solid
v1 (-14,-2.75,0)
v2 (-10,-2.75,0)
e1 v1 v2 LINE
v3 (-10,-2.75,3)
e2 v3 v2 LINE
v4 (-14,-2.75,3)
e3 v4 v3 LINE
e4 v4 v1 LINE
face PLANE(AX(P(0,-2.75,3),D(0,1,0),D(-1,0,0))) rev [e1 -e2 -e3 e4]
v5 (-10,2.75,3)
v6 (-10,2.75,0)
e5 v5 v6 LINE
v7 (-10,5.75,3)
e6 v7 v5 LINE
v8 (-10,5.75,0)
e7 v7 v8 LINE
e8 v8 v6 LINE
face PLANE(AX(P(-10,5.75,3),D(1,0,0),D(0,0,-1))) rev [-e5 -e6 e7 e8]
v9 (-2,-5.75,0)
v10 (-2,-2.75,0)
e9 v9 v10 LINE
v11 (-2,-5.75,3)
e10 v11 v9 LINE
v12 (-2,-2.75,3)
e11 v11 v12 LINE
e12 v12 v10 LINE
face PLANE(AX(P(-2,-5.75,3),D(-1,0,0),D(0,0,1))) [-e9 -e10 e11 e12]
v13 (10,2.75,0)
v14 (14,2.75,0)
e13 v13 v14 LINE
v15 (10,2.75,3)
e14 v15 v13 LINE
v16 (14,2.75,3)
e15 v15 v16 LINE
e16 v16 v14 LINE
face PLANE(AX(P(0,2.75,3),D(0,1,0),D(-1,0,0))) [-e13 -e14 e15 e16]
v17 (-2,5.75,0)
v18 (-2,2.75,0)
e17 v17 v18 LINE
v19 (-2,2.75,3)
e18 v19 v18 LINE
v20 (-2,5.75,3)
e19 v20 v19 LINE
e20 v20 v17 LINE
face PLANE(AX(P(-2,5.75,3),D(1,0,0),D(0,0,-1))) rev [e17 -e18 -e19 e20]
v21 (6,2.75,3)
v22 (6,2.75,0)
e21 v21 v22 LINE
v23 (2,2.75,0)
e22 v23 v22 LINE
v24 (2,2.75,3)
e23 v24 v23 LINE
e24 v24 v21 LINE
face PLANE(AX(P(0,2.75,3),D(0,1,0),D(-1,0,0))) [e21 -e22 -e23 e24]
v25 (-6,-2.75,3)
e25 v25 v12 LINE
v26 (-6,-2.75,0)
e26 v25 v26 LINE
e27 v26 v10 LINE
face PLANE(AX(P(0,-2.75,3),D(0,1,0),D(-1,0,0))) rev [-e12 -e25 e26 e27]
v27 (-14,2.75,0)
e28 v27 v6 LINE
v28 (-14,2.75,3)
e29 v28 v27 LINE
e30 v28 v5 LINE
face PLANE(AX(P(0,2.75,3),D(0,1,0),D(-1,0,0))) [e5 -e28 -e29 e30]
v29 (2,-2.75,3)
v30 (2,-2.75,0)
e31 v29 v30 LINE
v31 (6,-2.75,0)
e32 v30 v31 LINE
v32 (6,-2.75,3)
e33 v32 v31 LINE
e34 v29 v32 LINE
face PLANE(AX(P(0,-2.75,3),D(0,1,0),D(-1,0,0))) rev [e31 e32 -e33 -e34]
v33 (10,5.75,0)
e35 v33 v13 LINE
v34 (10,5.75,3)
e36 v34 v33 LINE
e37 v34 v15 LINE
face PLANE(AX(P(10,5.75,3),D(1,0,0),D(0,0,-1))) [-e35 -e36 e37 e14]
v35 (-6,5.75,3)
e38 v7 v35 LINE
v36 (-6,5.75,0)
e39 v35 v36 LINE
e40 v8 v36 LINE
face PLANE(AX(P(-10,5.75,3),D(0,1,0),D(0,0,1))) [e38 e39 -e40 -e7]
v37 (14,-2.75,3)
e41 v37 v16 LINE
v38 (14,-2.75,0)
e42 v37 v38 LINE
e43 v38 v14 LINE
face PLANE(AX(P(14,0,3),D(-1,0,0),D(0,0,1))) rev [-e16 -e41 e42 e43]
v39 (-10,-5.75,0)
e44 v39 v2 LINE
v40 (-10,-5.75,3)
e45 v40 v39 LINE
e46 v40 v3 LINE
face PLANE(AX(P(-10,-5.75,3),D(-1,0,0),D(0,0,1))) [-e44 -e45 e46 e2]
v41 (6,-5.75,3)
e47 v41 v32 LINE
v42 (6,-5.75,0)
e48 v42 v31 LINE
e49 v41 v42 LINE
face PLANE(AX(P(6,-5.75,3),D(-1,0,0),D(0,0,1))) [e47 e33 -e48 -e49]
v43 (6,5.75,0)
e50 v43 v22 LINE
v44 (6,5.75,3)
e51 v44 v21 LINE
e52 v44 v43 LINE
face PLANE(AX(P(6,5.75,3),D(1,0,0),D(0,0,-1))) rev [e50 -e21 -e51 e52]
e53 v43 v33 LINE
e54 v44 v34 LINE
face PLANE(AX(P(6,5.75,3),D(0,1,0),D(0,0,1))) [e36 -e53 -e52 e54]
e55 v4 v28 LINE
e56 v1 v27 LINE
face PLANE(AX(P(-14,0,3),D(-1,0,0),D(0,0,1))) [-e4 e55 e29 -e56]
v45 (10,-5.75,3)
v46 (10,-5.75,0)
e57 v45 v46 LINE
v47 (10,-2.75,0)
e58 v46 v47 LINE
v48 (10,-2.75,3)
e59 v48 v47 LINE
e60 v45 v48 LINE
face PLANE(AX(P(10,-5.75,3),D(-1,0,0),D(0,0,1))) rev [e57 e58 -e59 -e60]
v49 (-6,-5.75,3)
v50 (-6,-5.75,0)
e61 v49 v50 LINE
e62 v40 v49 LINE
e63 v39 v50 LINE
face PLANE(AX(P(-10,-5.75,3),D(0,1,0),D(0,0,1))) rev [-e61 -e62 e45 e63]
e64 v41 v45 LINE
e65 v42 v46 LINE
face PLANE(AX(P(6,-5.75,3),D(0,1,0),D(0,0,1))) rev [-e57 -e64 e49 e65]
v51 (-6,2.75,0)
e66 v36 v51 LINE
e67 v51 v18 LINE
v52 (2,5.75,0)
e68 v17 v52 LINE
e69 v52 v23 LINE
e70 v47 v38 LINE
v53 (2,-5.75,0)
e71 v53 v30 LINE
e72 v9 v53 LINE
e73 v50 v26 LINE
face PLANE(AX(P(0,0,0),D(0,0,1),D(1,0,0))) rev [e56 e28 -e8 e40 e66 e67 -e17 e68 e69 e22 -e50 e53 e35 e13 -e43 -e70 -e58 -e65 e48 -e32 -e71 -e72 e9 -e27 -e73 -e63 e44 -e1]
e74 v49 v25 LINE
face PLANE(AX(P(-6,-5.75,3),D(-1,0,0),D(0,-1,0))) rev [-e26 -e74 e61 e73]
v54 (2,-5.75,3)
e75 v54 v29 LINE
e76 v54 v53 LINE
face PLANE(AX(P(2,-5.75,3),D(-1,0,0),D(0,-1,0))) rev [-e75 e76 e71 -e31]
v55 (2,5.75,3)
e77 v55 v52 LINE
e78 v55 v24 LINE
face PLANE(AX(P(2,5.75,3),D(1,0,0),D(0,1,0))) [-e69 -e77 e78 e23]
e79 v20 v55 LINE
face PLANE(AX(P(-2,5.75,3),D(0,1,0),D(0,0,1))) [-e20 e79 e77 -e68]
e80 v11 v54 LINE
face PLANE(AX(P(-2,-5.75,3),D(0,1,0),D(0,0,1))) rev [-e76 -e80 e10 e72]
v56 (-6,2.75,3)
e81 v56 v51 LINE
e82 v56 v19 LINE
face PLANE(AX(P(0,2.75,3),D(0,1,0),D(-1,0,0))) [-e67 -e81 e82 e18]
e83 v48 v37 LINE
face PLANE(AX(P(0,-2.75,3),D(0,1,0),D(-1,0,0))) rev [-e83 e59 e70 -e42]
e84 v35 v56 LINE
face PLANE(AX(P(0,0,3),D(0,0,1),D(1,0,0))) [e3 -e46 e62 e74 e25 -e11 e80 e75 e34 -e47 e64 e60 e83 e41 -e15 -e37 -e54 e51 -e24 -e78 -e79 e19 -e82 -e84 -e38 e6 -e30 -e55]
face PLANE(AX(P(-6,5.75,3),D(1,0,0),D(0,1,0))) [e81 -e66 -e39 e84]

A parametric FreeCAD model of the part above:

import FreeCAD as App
import Part
import Sketcher

V = App.Vector
Q = App.Units.Quantity

doc = App.newDocument("Part")
body = doc.addObject("PartDesign::Body", "Body")

# Sketch on XY plane
sketch1 = doc.addObject("Sketcher::SketchObject", "Sketch")
body.addObject(sketch1)
sketch1.AttachmentSupport = (doc.XY_Plane, [""])
sketch1.MapMode = "FlatFace"
sketch1.addGeometry([
    Part.LineSegment(V(-10, -2.75, 0), V(-10, -5.75, 0)),  # 0
    Part.LineSegment(V(-10, -5.75, 0), V(-6, -5.75, 0)),  # 1
    Part.LineSegment(V(-6, -5.75, 0), V(-6, -2.75, 0)),  # 2
    Part.LineSegment(V(-6, -2.75, 0), V(-2, -2.75, 0)),  # 3
    Part.LineSegment(V(-2, -2.75, 0), V(-2, -5.75, 0)),  # 4
    Part.LineSegment(V(-2, -5.75, 0), V(2, -5.75, 0)),  # 5
    Part.LineSegment(V(2, -5.75, 0), V(2, -2.75, 0)),  # 6
    Part.LineSegment(V(2, -2.75, 0), V(6, -2.75, 0)),  # 7
    Part.LineSegment(V(6, -2.75, 0), V(6, -5.75, 0)),  # 8
    Part.LineSegment(V(6, -5.75, 0), V(10, -5.75, 0)),  # 9
    Part.LineSegment(V(10, -5.75, 0), V(10, -2.75, 0)),  # 10
    Part.LineSegment(V(10, -2.75, 0), V(14, -2.75, 0)),  # 11
    Part.LineSegment(V(14, -2.75, 0), V(14, 2.75, 0)),  # 12
    Part.LineSegment(V(14, 2.75, 0), V(10, 2.75, 0)),  # 13
    Part.LineSegment(V(10, 2.75, 0), V(10, 5.75, 0)),  # 14
    Part.LineSegment(V(10, 5.75, 0), V(6, 5.75, 0)),  # 15
    Part.LineSegment(V(6, 5.75, 0), V(6, 2.75, 0)),  # 16
    Part.LineSegment(V(6, 2.75, 0), V(2, 2.75, 0)),  # 17
    Part.LineSegment(V(2, 2.75, 0), V(2, 5.75, 0)),  # 18
    Part.LineSegment(V(2, 5.75, 0), V(-2, 5.75, 0)),  # 19
    Part.LineSegment(V(-2, 5.75, 0), V(-2, 2.75, 0)),  # 20
    Part.LineSegment(V(-2, 2.75, 0), V(-6, 2.75, 0)),  # 21
    Part.LineSegment(V(-6, 2.75, 0), V(-6, 5.75, 0)),  # 22
    Part.LineSegment(V(-6, 5.75, 0), V(-10, 5.75, 0)),  # 23
    Part.LineSegment(V(-10, 5.75, 0), V(-10, 2.75, 0)),  # 24
    Part.LineSegment(V(-10, 2.75, 0), V(-14, 2.75, 0)),  # 25
    Part.LineSegment(V(-14, 2.75, 0), V(-14, -2.75, 0)),  # 26
    Part.LineSegment(V(-14, -2.75, 0), V(-10, -2.75, 0)),  # 27
], False)
sketch1.addConstraint([
    Sketcher.Constraint("Coincident", 0, 2, 1, 1),
    Sketcher.Constraint("Coincident", 1, 2, 2, 1),
    Sketcher.Constraint("Coincident", 2, 2, 3, 1),
    Sketcher.Constraint("Coincident", 3, 2, 4, 1),
    Sketcher.Constraint("Coincident", 4, 2, 5, 1),
    Sketcher.Constraint("Coincident", 5, 2, 6, 1),
    Sketcher.Constraint("Coincident", 6, 2, 7, 1),
    Sketcher.Constraint("Coincident", 7, 2, 8, 1),
    Sketcher.Constraint("Coincident", 8, 2, 9, 1),
    Sketcher.Constraint("Coincident", 9, 2, 10, 1),
    Sketcher.Constraint("Coincident", 10, 2, 11, 1),
    Sketcher.Constraint("Coincident", 11, 2, 12, 1),
    Sketcher.Constraint("Coincident", 12, 2, 13, 1),
    Sketcher.Constraint("Coincident", 13, 2, 14, 1),
    Sketcher.Constraint("Coincident", 14, 2, 15, 1),
    Sketcher.Constraint("Coincident", 15, 2, 16, 1),
    Sketcher.Constraint("Coincident", 16, 2, 17, 1),
    Sketcher.Constraint("Coincident", 17, 2, 18, 1),
    Sketcher.Constraint("Coincident", 18, 2, 19, 1),
    Sketcher.Constraint("Coincident", 19, 2, 20, 1),
    Sketcher.Constraint("Coincident", 20, 2, 21, 1),
    Sketcher.Constraint("Coincident", 21, 2, 22, 1),
    Sketcher.Constraint("Coincident", 22, 2, 23, 1),
    Sketcher.Constraint("Coincident", 23, 2, 24, 1),
    Sketcher.Constraint("Coincident", 24, 2, 25, 1),
    Sketcher.Constraint("Coincident", 25, 2, 26, 1),
    Sketcher.Constraint("Coincident", 26, 2, 27, 1),
    Sketcher.Constraint("Coincident", 27, 2, 0, 1),
    Sketcher.Constraint("Vertical", 0),
    Sketcher.Constraint("Horizontal", 1),
    Sketcher.Constraint("Vertical", 2),
    Sketcher.Constraint("Horizontal", 3),
    Sketcher.Constraint("Vertical", 4),
    Sketcher.Constraint("Horizontal", 5),
    Sketcher.Constraint("Vertical", 6),
    Sketcher.Constraint("Horizontal", 7),
    Sketcher.Constraint("Vertical", 8),
    Sketcher.Constraint("Horizontal", 9),
    Sketcher.Constraint("Vertical", 10),
    Sketcher.Constraint("Horizontal", 11),
    Sketcher.Constraint("Vertical", 12),
    Sketcher.Constraint("Horizontal", 13),
    Sketcher.Constraint("Vertical", 14),
    Sketcher.Constraint("Horizontal", 15),
    Sketcher.Constraint("Vertical", 16),
    Sketcher.Constraint("Horizontal", 17),
    Sketcher.Constraint("Vertical", 18),
    Sketcher.Constraint("Horizontal", 19),
    Sketcher.Constraint("Vertical", 20),
    Sketcher.Constraint("Horizontal", 21),
    Sketcher.Constraint("Vertical", 22),
    Sketcher.Constraint("Horizontal", 23),
    Sketcher.Constraint("Vertical", 24),
    Sketcher.Constraint("Horizontal", 25),
    Sketcher.Constraint("Vertical", 26),
    Sketcher.Constraint("Horizontal", 27),
    Sketcher.Constraint("Symmetric", 0, 2, 14, 2, -1, 1),
    Sketcher.Constraint("Symmetric", 2, 2, 16, 2, -1, 1),
    Sketcher.Constraint("Symmetric", 4, 2, 18, 2, -1, 1),
    Sketcher.Constraint("Symmetric", 6, 2, 20, 2, -1, 1),
    Sketcher.Constraint("Symmetric", 8, 2, 22, 2, -1, 1),
    Sketcher.Constraint("Symmetric", 10, 2, 24, 2, -1, 1),
    Sketcher.Constraint("Symmetric", 12, 2, 26, 2, -1, 1),
    Sketcher.Constraint("Symmetric", 3, 2, 6, 2, -2),
    Sketcher.Constraint("Symmetric", 1, 2, 8, 2, -2),
    Sketcher.Constraint("Symmetric", 13, 2, 24, 2, -2),
    Sketcher.Constraint("Horizontal", 1, 2, 4, 2),
    Sketcher.Constraint("Horizontal", 7, 2, 10, 2),
    Sketcher.Constraint("Equal", 1, 3),
    Sketcher.Constraint("Equal", 3, 5),
    Sketcher.Constraint("Equal", 9, 11),
    Sketcher.Constraint("DistanceX", 1, 1, 1, 2, Q("4 mm")),
    Sketcher.Constraint("DistanceY", 0, 2, 0, 1, Q("3 mm")),
    Sketcher.Constraint("DistanceY", 12, 1, 12, 2, Q("5.5 mm")),
])
pad1 = doc.addObject("PartDesign::Pad", "Pad")
body.addObject(pad1)
pad1.Profile = sketch1
pad1.Length = 3

doc.recompute()
